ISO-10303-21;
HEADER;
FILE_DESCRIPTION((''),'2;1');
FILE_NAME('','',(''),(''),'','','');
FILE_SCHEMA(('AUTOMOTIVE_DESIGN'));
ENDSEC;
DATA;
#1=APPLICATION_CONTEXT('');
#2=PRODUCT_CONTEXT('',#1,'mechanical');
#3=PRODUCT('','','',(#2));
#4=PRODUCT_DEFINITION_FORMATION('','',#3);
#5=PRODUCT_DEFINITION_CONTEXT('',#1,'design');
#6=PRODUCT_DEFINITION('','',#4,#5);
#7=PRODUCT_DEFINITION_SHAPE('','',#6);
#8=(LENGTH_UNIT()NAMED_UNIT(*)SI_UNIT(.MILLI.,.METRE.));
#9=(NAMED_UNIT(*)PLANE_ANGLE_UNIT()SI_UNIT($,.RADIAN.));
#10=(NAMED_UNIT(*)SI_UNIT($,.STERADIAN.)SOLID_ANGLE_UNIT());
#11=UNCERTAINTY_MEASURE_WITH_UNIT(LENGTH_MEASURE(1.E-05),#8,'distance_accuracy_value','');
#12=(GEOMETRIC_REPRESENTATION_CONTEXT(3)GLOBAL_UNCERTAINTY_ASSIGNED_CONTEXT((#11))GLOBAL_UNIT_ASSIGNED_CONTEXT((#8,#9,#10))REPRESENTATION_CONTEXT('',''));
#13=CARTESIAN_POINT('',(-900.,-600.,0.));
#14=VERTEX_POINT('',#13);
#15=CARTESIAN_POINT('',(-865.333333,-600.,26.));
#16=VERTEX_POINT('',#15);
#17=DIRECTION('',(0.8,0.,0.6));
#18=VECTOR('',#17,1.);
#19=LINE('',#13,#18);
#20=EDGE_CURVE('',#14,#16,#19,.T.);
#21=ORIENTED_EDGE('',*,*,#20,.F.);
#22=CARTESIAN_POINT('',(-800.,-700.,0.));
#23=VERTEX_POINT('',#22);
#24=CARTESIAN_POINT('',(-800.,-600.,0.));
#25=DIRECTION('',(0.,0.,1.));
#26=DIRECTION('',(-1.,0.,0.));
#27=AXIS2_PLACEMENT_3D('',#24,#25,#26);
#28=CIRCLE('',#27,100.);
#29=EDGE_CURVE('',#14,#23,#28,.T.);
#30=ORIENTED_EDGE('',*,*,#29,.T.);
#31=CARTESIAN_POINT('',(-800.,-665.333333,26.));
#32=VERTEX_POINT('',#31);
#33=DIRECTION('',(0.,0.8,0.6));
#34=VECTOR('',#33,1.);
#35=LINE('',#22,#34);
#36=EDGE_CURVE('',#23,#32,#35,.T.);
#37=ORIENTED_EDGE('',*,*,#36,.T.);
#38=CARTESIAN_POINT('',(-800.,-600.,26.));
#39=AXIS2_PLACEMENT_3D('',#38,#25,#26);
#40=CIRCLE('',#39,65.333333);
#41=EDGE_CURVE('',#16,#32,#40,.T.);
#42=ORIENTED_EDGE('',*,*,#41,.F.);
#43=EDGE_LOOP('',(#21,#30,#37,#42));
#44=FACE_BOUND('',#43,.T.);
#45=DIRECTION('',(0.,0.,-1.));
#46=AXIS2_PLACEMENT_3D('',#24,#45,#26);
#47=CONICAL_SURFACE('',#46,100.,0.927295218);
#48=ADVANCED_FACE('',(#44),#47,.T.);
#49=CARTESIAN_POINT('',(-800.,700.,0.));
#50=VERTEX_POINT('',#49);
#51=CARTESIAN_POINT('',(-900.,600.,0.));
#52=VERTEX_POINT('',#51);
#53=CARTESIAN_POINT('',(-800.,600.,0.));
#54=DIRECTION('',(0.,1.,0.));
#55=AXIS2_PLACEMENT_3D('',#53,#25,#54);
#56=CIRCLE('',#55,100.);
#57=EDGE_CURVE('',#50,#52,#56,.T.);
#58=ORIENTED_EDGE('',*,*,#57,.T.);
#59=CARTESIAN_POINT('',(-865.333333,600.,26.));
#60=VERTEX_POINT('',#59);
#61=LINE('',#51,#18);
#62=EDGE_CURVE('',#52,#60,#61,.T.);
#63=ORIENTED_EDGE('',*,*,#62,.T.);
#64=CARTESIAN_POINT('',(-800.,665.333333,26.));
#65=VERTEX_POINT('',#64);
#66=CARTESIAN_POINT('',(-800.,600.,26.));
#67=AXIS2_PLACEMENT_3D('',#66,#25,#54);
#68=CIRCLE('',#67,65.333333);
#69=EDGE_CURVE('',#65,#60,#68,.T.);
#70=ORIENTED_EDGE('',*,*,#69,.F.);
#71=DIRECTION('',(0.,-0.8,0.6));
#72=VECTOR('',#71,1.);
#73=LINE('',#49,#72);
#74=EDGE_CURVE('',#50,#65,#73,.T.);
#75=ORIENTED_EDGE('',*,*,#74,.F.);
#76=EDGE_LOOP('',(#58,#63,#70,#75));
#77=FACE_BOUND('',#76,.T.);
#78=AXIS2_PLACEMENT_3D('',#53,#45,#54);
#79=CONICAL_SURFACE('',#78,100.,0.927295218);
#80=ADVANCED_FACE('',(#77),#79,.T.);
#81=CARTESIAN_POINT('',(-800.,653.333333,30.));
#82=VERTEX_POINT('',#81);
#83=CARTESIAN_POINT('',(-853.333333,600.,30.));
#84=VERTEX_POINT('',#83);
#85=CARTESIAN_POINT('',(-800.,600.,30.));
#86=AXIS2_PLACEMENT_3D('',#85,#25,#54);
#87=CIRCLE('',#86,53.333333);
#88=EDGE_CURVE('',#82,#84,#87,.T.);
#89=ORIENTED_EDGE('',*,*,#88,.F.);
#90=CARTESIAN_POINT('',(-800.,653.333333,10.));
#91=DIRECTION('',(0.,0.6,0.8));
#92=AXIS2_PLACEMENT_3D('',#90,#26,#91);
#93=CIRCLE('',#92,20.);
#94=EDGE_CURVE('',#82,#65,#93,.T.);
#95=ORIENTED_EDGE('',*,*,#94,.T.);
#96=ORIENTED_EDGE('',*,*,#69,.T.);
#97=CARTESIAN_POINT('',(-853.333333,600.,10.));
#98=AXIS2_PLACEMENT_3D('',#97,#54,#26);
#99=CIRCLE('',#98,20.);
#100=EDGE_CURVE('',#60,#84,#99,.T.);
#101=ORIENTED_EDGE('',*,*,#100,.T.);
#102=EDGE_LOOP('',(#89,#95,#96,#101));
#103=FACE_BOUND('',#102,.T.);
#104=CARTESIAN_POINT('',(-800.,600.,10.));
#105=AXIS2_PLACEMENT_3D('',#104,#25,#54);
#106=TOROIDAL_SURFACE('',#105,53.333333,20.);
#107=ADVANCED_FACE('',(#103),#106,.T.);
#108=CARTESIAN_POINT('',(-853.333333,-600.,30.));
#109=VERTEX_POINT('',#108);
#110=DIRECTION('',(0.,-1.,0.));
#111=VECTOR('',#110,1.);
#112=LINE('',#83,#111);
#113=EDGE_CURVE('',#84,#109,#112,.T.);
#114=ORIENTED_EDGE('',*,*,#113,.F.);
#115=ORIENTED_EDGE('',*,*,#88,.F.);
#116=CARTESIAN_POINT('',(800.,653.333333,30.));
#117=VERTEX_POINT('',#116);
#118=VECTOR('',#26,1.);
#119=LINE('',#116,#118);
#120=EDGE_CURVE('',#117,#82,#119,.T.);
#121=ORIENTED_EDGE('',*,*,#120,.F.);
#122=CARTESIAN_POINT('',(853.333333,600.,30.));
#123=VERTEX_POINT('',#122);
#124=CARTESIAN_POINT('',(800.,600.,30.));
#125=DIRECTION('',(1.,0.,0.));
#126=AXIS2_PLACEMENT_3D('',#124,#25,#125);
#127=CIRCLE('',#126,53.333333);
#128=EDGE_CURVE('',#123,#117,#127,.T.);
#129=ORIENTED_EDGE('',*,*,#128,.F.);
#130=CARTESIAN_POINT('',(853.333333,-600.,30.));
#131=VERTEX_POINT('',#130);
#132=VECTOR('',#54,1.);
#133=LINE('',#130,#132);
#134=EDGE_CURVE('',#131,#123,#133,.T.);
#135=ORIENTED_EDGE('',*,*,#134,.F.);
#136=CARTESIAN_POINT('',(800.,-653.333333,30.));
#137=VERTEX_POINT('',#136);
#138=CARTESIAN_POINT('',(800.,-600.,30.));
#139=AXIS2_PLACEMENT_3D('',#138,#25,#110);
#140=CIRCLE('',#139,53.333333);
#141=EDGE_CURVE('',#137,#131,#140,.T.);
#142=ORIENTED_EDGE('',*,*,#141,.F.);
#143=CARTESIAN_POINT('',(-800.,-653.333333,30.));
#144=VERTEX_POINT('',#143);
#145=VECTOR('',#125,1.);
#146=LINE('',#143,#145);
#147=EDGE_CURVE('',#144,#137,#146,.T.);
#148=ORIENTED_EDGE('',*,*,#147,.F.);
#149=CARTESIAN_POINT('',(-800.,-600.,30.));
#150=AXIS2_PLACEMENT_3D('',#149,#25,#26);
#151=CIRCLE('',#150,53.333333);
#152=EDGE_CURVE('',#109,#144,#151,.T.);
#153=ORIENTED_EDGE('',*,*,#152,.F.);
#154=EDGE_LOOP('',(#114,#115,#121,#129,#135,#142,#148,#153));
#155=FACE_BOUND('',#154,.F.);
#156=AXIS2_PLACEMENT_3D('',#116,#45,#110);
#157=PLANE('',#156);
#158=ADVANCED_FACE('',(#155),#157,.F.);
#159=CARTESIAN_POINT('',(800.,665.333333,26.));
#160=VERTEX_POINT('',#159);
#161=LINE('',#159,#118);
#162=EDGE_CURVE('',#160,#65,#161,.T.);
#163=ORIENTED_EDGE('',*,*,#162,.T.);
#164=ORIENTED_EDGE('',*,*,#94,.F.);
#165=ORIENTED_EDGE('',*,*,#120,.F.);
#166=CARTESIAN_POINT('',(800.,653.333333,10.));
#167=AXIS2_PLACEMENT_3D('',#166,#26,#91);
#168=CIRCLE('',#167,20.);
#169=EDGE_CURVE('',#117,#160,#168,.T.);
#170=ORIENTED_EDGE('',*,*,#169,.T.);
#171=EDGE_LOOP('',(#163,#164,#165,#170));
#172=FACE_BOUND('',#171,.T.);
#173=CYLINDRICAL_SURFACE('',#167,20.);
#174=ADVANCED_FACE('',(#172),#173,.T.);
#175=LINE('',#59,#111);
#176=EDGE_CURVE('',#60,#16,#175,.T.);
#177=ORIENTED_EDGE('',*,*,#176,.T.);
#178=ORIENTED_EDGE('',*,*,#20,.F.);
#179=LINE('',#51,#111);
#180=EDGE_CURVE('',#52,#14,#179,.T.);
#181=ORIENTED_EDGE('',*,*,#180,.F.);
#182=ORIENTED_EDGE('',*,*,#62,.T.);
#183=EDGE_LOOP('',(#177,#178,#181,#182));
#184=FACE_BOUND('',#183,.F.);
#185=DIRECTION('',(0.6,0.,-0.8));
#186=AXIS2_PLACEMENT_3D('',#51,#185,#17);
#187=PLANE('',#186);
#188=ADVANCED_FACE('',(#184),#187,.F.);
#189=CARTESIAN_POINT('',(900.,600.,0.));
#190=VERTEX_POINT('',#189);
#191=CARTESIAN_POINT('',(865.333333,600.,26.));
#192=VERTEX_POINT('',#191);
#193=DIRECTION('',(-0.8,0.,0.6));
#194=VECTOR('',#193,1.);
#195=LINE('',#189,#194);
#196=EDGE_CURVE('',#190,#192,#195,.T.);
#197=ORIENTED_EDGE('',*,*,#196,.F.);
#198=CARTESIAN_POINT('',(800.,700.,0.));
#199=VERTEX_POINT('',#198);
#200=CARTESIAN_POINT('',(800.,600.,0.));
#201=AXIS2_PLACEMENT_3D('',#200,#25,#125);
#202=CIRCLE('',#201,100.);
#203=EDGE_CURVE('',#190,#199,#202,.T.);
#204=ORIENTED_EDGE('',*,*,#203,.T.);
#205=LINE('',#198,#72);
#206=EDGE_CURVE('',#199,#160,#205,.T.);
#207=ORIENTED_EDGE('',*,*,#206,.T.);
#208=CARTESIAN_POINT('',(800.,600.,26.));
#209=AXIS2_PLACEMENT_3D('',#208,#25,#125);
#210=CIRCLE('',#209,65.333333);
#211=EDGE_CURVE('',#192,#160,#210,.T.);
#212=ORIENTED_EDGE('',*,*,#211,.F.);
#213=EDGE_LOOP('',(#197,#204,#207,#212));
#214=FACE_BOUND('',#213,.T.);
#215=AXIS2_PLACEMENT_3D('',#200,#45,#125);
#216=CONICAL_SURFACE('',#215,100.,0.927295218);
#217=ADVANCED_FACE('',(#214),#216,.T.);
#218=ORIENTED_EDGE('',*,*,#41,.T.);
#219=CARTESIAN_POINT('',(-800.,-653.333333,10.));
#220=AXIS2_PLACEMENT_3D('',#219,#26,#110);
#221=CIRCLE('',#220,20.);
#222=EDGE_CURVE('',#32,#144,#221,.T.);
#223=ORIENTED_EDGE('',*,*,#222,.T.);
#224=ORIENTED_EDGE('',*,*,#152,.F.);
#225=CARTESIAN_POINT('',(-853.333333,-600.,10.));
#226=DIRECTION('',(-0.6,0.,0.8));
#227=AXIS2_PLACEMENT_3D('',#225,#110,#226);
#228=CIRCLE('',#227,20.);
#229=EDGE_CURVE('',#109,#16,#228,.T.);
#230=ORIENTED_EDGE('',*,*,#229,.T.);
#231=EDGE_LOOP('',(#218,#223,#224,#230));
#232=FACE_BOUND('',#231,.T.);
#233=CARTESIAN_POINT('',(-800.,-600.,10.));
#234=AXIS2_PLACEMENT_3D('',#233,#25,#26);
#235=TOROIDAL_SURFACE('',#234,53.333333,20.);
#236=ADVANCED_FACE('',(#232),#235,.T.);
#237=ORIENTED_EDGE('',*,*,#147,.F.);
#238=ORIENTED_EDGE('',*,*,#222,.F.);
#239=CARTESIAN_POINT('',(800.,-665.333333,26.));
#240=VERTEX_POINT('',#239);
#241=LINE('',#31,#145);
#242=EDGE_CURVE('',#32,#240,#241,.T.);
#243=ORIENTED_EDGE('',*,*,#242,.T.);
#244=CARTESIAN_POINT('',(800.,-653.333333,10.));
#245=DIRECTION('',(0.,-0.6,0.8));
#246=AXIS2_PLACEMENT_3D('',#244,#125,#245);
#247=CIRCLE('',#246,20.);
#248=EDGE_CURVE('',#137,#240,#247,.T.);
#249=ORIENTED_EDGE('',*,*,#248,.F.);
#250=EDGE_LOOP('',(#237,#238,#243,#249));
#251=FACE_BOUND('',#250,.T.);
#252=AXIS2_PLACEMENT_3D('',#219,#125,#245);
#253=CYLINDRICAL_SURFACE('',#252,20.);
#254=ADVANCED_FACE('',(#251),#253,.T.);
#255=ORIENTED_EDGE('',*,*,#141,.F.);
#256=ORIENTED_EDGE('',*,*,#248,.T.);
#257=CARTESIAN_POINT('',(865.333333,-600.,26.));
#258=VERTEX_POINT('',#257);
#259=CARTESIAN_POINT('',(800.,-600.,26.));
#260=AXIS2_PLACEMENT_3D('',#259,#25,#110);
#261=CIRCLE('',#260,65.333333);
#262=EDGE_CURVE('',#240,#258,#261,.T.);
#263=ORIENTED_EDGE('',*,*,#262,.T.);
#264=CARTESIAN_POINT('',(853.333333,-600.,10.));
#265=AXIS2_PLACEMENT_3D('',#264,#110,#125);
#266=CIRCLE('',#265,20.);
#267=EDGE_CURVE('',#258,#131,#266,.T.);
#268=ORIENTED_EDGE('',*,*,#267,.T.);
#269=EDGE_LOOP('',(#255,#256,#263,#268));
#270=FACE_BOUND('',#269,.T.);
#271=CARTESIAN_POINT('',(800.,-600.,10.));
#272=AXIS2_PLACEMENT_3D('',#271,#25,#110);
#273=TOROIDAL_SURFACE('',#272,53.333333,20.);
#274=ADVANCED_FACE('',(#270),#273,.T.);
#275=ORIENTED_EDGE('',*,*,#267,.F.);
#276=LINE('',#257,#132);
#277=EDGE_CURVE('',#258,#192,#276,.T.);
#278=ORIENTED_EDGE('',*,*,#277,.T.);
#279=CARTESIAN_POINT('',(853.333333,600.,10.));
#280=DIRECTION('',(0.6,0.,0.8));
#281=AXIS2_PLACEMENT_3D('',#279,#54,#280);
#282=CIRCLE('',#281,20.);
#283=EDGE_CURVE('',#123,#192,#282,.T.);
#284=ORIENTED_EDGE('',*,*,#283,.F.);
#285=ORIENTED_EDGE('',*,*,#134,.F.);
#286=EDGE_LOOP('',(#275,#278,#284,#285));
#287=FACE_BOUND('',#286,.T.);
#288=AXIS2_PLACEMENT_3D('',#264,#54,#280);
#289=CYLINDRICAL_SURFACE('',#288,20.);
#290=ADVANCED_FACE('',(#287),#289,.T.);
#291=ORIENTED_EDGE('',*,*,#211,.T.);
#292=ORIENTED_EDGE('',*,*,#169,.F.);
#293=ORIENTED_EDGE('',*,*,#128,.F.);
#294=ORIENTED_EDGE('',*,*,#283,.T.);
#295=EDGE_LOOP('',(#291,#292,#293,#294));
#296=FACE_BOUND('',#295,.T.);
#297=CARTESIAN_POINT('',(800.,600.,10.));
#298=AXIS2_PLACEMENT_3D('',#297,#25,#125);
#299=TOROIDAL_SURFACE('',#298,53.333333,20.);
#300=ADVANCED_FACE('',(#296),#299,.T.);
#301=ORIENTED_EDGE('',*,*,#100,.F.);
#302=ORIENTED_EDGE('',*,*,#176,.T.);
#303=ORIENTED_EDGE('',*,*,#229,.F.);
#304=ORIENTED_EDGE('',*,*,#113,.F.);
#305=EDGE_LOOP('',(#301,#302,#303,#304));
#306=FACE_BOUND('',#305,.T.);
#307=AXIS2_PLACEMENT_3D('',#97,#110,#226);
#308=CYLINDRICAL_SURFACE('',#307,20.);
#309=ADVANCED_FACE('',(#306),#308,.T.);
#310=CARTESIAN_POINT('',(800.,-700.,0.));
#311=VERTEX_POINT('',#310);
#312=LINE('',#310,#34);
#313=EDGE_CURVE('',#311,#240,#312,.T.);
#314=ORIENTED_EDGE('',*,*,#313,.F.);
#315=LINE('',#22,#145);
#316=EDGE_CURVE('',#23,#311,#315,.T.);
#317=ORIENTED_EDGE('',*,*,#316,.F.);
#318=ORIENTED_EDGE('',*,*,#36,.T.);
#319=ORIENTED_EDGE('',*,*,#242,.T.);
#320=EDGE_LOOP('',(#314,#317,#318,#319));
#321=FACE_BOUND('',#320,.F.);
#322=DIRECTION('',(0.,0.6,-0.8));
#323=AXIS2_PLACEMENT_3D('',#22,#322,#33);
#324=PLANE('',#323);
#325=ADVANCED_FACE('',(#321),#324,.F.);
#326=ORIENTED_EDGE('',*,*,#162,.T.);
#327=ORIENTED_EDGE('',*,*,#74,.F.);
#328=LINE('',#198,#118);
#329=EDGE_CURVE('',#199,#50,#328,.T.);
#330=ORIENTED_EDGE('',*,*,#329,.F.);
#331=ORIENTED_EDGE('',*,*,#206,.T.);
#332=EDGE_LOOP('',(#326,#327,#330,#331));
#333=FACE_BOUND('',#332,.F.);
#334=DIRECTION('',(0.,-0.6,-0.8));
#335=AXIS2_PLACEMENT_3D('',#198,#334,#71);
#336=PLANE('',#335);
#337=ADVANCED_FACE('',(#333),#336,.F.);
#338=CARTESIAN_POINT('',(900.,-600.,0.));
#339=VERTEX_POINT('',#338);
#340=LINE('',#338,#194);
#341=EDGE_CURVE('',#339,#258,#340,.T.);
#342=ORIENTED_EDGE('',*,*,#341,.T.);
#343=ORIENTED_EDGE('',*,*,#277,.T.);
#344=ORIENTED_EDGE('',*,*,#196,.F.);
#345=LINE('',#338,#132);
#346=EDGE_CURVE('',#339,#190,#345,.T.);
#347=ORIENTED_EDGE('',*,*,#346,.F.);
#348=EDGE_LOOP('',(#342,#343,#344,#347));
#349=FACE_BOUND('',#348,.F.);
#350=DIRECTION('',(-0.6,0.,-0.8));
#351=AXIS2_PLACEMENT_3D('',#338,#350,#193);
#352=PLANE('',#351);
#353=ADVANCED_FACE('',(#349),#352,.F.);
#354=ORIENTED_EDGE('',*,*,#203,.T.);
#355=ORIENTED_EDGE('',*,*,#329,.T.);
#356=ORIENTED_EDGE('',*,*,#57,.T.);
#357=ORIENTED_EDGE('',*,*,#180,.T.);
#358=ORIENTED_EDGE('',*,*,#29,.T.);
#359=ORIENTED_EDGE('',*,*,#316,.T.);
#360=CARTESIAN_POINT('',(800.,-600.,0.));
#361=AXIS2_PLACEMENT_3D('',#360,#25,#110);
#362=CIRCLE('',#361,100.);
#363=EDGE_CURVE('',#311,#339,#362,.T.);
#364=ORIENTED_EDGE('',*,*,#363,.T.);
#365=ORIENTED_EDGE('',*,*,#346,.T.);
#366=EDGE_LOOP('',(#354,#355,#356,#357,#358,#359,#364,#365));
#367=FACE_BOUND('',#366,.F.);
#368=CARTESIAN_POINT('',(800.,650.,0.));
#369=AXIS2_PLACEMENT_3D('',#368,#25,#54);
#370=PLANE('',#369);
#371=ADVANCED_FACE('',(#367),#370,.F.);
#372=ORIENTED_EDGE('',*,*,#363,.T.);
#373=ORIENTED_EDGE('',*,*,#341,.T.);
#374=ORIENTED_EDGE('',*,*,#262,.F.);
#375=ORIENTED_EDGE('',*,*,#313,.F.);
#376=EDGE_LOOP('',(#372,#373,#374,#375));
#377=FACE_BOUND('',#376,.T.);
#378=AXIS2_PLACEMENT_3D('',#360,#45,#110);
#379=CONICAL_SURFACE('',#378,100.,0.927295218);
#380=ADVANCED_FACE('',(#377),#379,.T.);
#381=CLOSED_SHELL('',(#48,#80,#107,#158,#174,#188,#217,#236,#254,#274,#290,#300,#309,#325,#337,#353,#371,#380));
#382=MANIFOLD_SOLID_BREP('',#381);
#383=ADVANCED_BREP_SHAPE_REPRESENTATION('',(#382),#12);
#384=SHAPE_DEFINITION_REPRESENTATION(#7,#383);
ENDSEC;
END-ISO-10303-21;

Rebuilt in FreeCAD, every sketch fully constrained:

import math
import FreeCAD as App
import Part
import Sketcher
Q = App.Units.Quantity


def edges_at(feature, points):
    """Names of the edges that pass closest to the given points."""
    edges = feature.Shape.Edges
    near = lambda p: min(range(len(edges)), key=lambda i: edges[i].distToShape(Part.Vertex(*p))[0])
    return sorted({f"Edge{near(p) + 1}" for p in points})


def add_polygon(sketch, points):
    """Adds a closed chain of lines whose ends are joined by coincident constraints."""
    first, n = sketch.GeometryCount, len(points)
    for a, b in zip(points, points[1:] + points[:1]):
        sketch.addGeometry(Part.LineSegment(App.Vector(*a, 0), App.Vector(*b, 0)), False)
    for i in range(n):
        sketch.addConstraint(Sketcher.Constraint("Coincident", first + i, 2, first + (i + 1) % n, 1))

doc = App.newDocument("Part")
body = doc.addObject("PartDesign::Body", "Body")

# Sketch on XY plane
sketch1 = doc.addObject("Sketcher::SketchObject", "Sketch")
body.addObject(sketch1)
sketch1.AttachmentSupport = (doc.XY_Plane, [""])
sketch1.MapMode = "FlatFace"
add_polygon(sketch1, [(-850, 650), (-850, -650), (850, -650), (850, 650)])  # lines 0-3
sketch1.addConstraint([
    Sketcher.Constraint("Vertical", 0),
    Sketcher.Constraint("Horizontal", 1),
    Sketcher.Constraint("Vertical", 2),
    Sketcher.Constraint("Horizontal", 3),
    Sketcher.Constraint("Symmetric", 0, 2, 2, 2, -1, 1),
    Sketcher.Constraint("DistanceX", 1, 1, 1, 2, Q("1700 mm")),
    Sketcher.Constraint("DistanceY", 0, 2, 0, 1, Q("1300 mm")),
])
pad1 = doc.addObject("PartDesign::Pad", "Pad")
body.addObject(pad1)
pad1.Profile = sketch1
pad1.Length = 30
doc.recompute()

fillet = doc.addObject("PartDesign::Fillet", "Fillet")
body.addObject(fillet)
fillet.Base = (pad1, edges_at(pad1, [
    (-850, -650, 15),
    (-850, 650, 15),
    (850, -650, 15),
    (850, 650, 15),
]))
fillet.Radius = 50

# Sketch on XZ plane
sketch2 = doc.addObject("Sketcher::SketchObject", "Sketch001")
body.addObject(sketch2)
sketch2.AttachmentSupport = (doc.XZ_Plane, [""])
sketch2.MapMode = "FlatFace"
sketch2.AttachmentOffset = App.Placement(App.Vector(0, 0, 600), App.Rotation())
sketch2.addGeometry([
    Part.LineSegment(App.Vector(853.333333, 30, 0), App.Vector(850, 30, 0)),  # 0
    Part.LineSegment(App.Vector(850, 30, 0), App.Vector(850, 0, 0)),  # 1
    Part.LineSegment(App.Vector(850, 0, 0), App.Vector(900, 0, 0)),  # 2
    Part.LineSegment(App.Vector(900, 0, 0), App.Vector(865.333333, 26, 0)),  # 3
    Part.ArcOfCircle(Part.Circle(App.Vector(853.333333, 10, 0), App.Vector(0, 0, 1), 20), math.radians(53.130102), math.radians(90)),  # 4
], False)
sketch2.addConstraint([
    Sketcher.Constraint("Coincident", 0, 2, 1, 1),
    Sketcher.Constraint("Coincident", 1, 2, 2, 1),
    Sketcher.Constraint("Coincident", 2, 2, 3, 1),
    Sketcher.Constraint("Tangent", 3, 2, 4, 1),
    Sketcher.Constraint("Tangent", 4, 2, 0, 1),
    Sketcher.Constraint("Horizontal", 0),
    Sketcher.Constraint("Vertical", 1),
    Sketcher.Constraint("Horizontal", 2),
    Sketcher.Constraint("PointOnObject", 1, 2, -1),
    Sketcher.Constraint("Radius", 4, Q("20 mm")),
    Sketcher.Constraint("DistanceX", 2, 1, 2, 2, Q("50 mm")),
    Sketcher.Constraint("DistanceY", 1, 2, 1, 1, Q("30 mm")),
    Sketcher.Constraint("DistanceX", -1, 1, 0, 2, Q("850 mm")),
    Sketcher.Constraint("DistanceY", -1, 1, 3, 2, Q("26 mm")),
])

# Sketch on XY plane
sketch3 = doc.addObject("Sketcher::SketchObject", "Sketch002")
body.addObject(sketch3)
sketch3.AttachmentSupport = (doc.XY_Plane, [""])
sketch3.MapMode = "FlatFace"
sketch3.AttachmentOffset = App.Placement(App.Vector(0, 0, 30), App.Rotation())
sketch3.addGeometry([
    Part.LineSegment(App.Vector(800, 650, 0), App.Vector(-800, 650, 0)),  # 0
    Part.ArcOfCircle(Part.Circle(App.Vector(-800, 600, 0), App.Vector(0, 0, 1), 50), math.radians(90), math.radians(180)),  # 1
    Part.LineSegment(App.Vector(-850, 600, 0), App.Vector(-850, -600, 0)),  # 2
    Part.ArcOfCircle(Part.Circle(App.Vector(-800, -600, 0), App.Vector(0, 0, 1), 50), math.radians(180), math.radians(270)),  # 3
    Part.LineSegment(App.Vector(-800, -650, 0), App.Vector(800, -650, 0)),  # 4
    Part.ArcOfCircle(Part.Circle(App.Vector(800, -600, 0), App.Vector(0, 0, 1), 50), math.radians(-90), math.radians(0)),  # 5
    Part.LineSegment(App.Vector(850, -600, 0), App.Vector(850, 600, 0)),  # 6
    Part.ArcOfCircle(Part.Circle(App.Vector(800, 600, 0), App.Vector(0, 0, 1), 50), math.radians(0), math.radians(90)),  # 7
], False)
sketch3.addConstraint([
    Sketcher.Constraint("Tangent", 0, 2, 1, 1),
    Sketcher.Constraint("Tangent", 1, 2, 2, 1),
    Sketcher.Constraint("Tangent", 2, 2, 3, 1),
    Sketcher.Constraint("Tangent", 3, 2, 4, 1),
    Sketcher.Constraint("Tangent", 4, 2, 5, 1),
    Sketcher.Constraint("Tangent", 5, 2, 6, 1),
    Sketcher.Constraint("Tangent", 6, 2, 7, 1),
    Sketcher.Constraint("Tangent", 7, 2, 0, 1),
    Sketcher.Constraint("Horizontal", 0),
    Sketcher.Constraint("Vertical", 2),
    Sketcher.Constraint("Horizontal", 4),
    Sketcher.Constraint("Vertical", 6),
    Sketcher.Constraint("Equal", 1, 3),
    Sketcher.Constraint("Equal", 3, 5),
    Sketcher.Constraint("Equal", 5, 7),
    Sketcher.Constraint("Symmetric", 1, 3, 5, 3, -1, 1),
    Sketcher.Constraint("Radius", 1, Q("50 mm")),
    Sketcher.Constraint("DistanceX", 0, 2, 0, 1, Q("1600 mm")),
    Sketcher.Constraint("DistanceY", 2, 2, 2, 1, Q("1200 mm")),
])
doc.recompute()

additivepipe = doc.addObject("PartDesign::AdditivePipe", "AdditivePipe")
body.addObject(additivepipe)
additivepipe.Profile = sketch2
additivepipe.Spine = (sketch3, ["Edge1", "Edge2", "Edge3", "Edge4", "Edge5", "Edge6", "Edge7", "Edge8"])

doc.recompute()
